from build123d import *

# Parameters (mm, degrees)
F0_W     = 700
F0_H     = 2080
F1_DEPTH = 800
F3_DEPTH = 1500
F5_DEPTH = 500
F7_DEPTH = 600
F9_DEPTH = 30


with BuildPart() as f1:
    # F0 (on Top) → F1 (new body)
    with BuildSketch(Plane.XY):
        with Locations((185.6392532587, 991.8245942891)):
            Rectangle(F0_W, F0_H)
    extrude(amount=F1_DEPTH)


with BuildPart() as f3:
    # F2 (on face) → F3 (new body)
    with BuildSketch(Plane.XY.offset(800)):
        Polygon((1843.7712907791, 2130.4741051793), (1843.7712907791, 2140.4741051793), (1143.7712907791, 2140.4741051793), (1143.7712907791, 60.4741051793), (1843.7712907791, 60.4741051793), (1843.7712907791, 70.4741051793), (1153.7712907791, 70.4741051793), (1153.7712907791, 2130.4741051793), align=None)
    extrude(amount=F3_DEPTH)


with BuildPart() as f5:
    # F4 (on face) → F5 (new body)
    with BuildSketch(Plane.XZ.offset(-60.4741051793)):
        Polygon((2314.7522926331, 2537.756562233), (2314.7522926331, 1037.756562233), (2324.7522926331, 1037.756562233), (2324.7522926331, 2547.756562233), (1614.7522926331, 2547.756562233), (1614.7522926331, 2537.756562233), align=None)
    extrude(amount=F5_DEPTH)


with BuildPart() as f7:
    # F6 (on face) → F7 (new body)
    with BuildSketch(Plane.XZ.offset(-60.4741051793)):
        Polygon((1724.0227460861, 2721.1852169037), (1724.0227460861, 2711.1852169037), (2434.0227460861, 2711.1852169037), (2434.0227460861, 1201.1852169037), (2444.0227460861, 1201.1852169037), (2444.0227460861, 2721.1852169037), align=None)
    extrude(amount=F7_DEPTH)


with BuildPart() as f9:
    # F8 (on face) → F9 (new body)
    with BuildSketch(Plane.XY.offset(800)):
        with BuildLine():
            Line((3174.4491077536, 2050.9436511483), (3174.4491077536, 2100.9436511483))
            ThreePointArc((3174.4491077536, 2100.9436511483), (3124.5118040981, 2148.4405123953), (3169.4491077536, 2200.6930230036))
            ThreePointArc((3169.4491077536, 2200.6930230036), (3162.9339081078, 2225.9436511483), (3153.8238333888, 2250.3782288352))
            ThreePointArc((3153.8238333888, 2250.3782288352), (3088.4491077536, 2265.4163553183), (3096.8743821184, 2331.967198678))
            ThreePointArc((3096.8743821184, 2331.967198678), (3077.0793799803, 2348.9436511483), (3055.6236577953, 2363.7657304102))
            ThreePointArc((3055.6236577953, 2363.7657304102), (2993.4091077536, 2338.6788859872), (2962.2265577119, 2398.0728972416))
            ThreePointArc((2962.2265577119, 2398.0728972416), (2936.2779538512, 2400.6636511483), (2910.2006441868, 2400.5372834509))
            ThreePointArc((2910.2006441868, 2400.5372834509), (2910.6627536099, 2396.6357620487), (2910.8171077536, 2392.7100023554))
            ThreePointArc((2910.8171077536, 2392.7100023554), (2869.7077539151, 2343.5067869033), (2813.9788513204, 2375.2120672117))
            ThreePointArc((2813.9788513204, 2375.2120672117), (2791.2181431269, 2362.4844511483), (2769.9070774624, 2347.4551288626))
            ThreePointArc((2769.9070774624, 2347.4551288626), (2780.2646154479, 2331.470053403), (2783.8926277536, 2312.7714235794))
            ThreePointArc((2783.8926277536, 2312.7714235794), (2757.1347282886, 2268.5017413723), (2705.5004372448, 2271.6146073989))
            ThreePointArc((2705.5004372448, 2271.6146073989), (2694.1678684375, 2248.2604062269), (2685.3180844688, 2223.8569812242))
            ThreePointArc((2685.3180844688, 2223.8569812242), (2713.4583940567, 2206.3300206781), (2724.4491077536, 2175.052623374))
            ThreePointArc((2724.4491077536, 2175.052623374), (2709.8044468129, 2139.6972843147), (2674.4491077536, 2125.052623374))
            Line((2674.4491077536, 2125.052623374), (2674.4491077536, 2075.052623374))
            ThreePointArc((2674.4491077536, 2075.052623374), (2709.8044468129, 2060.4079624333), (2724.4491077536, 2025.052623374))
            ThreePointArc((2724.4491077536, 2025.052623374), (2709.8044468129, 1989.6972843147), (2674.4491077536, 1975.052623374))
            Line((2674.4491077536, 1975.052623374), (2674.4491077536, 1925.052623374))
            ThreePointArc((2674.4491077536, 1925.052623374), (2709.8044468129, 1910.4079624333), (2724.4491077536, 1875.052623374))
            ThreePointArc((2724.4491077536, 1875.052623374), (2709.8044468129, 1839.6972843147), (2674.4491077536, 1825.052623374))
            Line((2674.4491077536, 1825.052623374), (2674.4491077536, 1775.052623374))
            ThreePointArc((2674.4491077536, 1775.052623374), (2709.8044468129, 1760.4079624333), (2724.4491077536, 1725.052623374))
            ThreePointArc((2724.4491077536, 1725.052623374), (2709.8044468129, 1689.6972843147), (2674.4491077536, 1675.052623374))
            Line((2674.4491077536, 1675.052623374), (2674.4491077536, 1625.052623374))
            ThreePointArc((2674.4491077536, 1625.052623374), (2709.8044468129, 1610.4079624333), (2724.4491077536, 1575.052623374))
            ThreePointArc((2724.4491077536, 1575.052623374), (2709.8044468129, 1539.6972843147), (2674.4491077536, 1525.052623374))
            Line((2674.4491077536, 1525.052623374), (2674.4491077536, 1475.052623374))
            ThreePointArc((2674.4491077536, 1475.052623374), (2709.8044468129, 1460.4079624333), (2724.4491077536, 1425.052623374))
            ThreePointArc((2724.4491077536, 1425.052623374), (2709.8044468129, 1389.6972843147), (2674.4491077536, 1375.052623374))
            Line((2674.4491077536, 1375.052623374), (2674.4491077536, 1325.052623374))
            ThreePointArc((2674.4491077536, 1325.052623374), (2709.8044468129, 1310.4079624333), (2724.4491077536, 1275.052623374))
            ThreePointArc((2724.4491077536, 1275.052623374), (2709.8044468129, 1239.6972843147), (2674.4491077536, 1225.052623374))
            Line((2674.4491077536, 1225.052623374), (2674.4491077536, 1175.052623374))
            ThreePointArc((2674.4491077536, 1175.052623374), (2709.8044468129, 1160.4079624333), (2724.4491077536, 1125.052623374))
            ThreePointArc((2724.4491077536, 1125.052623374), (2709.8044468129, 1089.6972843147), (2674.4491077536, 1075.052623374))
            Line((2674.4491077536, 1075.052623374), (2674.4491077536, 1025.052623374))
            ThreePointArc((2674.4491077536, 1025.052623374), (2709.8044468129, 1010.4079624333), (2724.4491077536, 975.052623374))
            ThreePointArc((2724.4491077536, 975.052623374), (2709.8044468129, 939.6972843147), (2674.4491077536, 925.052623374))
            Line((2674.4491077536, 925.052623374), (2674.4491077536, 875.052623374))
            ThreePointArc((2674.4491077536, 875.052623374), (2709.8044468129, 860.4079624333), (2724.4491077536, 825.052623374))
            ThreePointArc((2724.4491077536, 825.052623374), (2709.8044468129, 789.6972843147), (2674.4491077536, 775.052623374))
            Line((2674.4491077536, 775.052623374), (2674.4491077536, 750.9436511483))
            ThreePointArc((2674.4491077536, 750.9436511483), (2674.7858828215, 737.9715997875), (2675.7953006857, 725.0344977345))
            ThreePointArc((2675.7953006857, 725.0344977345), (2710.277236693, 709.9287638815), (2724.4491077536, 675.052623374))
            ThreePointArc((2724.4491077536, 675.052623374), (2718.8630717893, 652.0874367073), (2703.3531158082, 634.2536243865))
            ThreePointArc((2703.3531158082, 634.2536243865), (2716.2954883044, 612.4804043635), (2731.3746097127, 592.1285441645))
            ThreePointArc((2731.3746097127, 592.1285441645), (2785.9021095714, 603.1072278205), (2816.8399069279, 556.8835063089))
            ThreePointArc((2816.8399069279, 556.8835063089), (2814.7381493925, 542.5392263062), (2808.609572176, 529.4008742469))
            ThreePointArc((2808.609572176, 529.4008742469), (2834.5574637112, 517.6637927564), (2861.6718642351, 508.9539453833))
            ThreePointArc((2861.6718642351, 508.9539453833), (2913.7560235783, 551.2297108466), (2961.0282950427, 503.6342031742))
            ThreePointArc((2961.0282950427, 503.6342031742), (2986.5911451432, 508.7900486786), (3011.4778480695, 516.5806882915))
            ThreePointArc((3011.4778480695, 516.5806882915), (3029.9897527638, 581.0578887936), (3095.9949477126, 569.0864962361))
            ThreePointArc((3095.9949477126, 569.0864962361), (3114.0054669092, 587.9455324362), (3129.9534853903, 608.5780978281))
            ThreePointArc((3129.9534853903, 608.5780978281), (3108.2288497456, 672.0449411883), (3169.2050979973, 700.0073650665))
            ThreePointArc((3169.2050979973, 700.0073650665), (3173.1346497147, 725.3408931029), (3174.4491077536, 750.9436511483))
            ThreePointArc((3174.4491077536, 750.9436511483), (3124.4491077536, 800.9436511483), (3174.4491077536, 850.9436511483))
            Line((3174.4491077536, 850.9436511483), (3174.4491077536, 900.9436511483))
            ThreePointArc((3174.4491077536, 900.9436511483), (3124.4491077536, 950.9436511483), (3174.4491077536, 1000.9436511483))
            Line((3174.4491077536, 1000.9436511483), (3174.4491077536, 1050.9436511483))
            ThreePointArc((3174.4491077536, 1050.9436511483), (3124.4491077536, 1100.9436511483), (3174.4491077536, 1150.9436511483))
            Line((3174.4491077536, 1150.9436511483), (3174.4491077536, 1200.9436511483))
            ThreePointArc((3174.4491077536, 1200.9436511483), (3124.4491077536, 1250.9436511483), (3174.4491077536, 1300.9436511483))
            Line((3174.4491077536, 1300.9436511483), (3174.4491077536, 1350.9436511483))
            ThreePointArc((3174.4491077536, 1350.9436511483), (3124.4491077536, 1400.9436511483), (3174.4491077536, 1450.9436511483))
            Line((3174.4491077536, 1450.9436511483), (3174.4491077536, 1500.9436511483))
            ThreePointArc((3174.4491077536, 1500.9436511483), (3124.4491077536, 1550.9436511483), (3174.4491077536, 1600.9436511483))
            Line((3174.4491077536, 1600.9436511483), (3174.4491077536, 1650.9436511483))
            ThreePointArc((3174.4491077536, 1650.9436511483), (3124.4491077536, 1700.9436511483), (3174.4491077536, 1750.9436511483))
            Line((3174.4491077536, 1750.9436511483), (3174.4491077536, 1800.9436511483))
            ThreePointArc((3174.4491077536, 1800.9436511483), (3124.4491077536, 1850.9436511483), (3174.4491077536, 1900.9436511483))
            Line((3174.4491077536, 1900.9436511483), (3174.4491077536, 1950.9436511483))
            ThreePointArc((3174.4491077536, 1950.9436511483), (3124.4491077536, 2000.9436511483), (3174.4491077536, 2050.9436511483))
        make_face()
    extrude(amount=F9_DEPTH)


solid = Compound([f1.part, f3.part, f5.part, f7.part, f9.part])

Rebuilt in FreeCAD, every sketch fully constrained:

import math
import FreeCAD as App
import Part
import Sketcher
Q = App.Units.Quantity


def add_polygon(sketch, points):
    """Adds a closed chain of lines whose ends are joined by coincident constraints."""
    first, n = sketch.GeometryCount, len(points)
    for a, b in zip(points, points[1:] + points[:1]):
        sketch.addGeometry(Part.LineSegment(App.Vector(*a, 0), App.Vector(*b, 0)), False)
    for i in range(n):
        sketch.addConstraint(Sketcher.Constraint("Coincident", first + i, 2, first + (i + 1) % n, 1))

doc = App.newDocument("Part")
body = doc.addObject("PartDesign::Body", "Body")

# Sketch on XY plane
sketch1 = doc.addObject("Sketcher::SketchObject", "Sketch")
body.addObject(sketch1)
sketch1.AttachmentSupport = (doc.XY_Plane, [""])
sketch1.MapMode = "FlatFace"
add_polygon(sketch1, [(-164, 2032), (-164, -48), (536, -48), (536, 2032)])  # lines 0-3
sketch1.addConstraint(Sketcher.Constraint("Vertical", 0))
sketch1.addConstraint(Sketcher.Constraint("Horizontal", 1))
sketch1.addConstraint(Sketcher.Constraint("Vertical", 2))
sketch1.addConstraint(Sketcher.Constraint("Horizontal", 3))
sketch1.addConstraint(Sketcher.Constraint("DistanceX", 1, 1, 1, 2, Q("700 mm")))
sketch1.addConstraint(Sketcher.Constraint("DistanceY", 0, 2, 0, 1, Q("2080 mm")))
sketch1.addConstraint(Sketcher.Constraint("DistanceX", 0, 2, -1, 1, Q("164.360747 mm")))
sketch1.addConstraint(Sketcher.Constraint("DistanceY", 0, 2, -1, 1, Q("48.175406 mm")))
pad1 = doc.addObject("PartDesign::Pad", "Pad")
body.addObject(pad1)
pad1.Profile = sketch1
pad1.Length = 800
body2 = doc.addObject("PartDesign::Body", "Body001")

# Sketch on XY plane
sketch2 = doc.addObject("Sketcher::SketchObject", "Sketch001")
body2.addObject(sketch2)
sketch2.AttachmentSupport = (doc.getObject("XY_Plane001"), [""])
sketch2.MapMode = "FlatFace"
sketch2.AttachmentOffset = App.Placement(App.Vector(0, 0, 800), App.Rotation())
add_polygon(sketch2, [(1844, 2130), (1844, 2140), (1144, 2140), (1144, 60), (1844, 60), (1844, 70), (1154, 70), (1154, 2130)])  # lines 0-7
sketch2.addConstraint(Sketcher.Constraint("Vertical", 0))
sketch2.addConstraint(Sketcher.Constraint("Horizontal", 1))
sketch2.addConstraint(Sketcher.Constraint("Vertical", 2))
sketch2.addConstraint(Sketcher.Constraint("Horizontal", 3))
sketch2.addConstraint(Sketcher.Constraint("Vertical", 4))
sketch2.addConstraint(Sketcher.Constraint("Horizontal", 5))
sketch2.addConstraint(Sketcher.Constraint("Vertical", 6))
sketch2.addConstraint(Sketcher.Constraint("Horizontal", 7))
sketch2.addConstraint(Sketcher.Constraint("Vertical", 0, 2, 3, 2))
sketch2.addConstraint(Sketcher.Constraint("Equal", 0, 4))
sketch2.addConstraint(Sketcher.Constraint("DistanceX", 1, 2, 1, 1, Q("700 mm")))
sketch2.addConstraint(Sketcher.Constraint("DistanceX", 5, 2, 5, 1, Q("690 mm")))
sketch2.addConstraint(Sketcher.Constraint("DistanceY", 0, 1, 0, 2, Q("10 mm")))
sketch2.addConstraint(Sketcher.Constraint("DistanceY", 2, 2, 2, 1, Q("2080 mm")))
sketch2.addConstraint(Sketcher.Constraint("DistanceX", -1, 1, 0, 2, Q("1843.771291 mm")))
sketch2.addConstraint(Sketcher.Constraint("DistanceY", -1, 1, 0, 2, Q("2140.474105 mm")))
pad2 = doc.addObject("PartDesign::Pad", "Pad001")
body2.addObject(pad2)
pad2.Profile = sketch2
pad2.Length = 1500
body3 = doc.addObject("PartDesign::Body", "Body002")

# Sketch on XZ plane
sketch3 = doc.addObject("Sketcher::SketchObject", "Sketch002")
body3.addObject(sketch3)
sketch3.AttachmentSupport = (doc.getObject("XZ_Plane002"), [""])
sketch3.MapMode = "FlatFace"
sketch3.AttachmentOffset = App.Placement(App.Vector(0, 0, -60.474105), App.Rotation())
add_polygon(sketch3, [(2315, 2538), (2315, 1038), (2325, 1038), (2325, 2548), (1615, 2548), (1615, 2538)])  # lines 0-5
sketch3.addConstraint(Sketcher.Constraint("Vertical", 0))
sketch3.addConstraint(Sketcher.Constraint("Horizontal", 1))
sketch3.addConstraint(Sketcher.Constraint("Vertical", 2))
sketch3.addConstraint(Sketcher.Constraint("Horizontal", 3))
sketch3.addConstraint(Sketcher.Constraint("Vertical", 4))
sketch3.addConstraint(Sketcher.Constraint("Horizontal", 5))
sketch3.addConstraint(Sketcher.Constraint("Equal", 1, 4))
sketch3.addConstraint(Sketcher.Constraint("DistanceX", 1, 1, 1, 2, Q("10 mm")))
sketch3.addConstraint(Sketcher.Constraint("DistanceX", 3, 2, 3, 1, Q("710 mm")))
sketch3.addConstraint(Sketcher.Constraint("DistanceY", 0, 2, 0, 1, Q("1500 mm")))
sketch3.addConstraint(Sketcher.Constraint("DistanceX", -1, 1, 0, 2, Q("2314.752293 mm")))
sketch3.addConstraint(Sketcher.Constraint("DistanceY", -1, 1, 0, 2, Q("1037.756562 mm")))
pad3 = doc.addObject("PartDesign::Pad", "Pad002")
body3.addObject(pad3)
pad3.Profile = sketch3
pad3.Length = 500
body4 = doc.addObject("PartDesign::Body", "Body003")

# Sketch on XZ plane
sketch4 = doc.addObject("Sketcher::SketchObject", "Sketch003")
body4.addObject(sketch4)
sketch4.AttachmentSupport = (doc.getObject("XZ_Plane003"), [""])
sketch4.MapMode = "FlatFace"
sketch4.AttachmentOffset = App.Placement(App.Vector(0, 0, -60.474105), App.Rotation())
add_polygon(sketch4, [(1724, 2721), (1724, 2711), (2434, 2711), (2434, 1201), (2444, 1201), (2444, 2721)])  # lines 0-5
sketch4.addConstraint(Sketcher.Constraint("Vertical", 0))
sketch4.addConstraint(Sketcher.Constraint("Horizontal", 1))
sketch4.addConstraint(Sketcher.Constraint("Vertical", 2))
sketch4.addConstraint(Sketcher.Constraint("Horizontal", 3))
sketch4.addConstraint(Sketcher.Constraint("Vertical", 4))
sketch4.addConstraint(Sketcher.Constraint("Horizontal", 5))
sketch4.addConstraint(Sketcher.Constraint("Equal", 3, 0))
sketch4.addConstraint(Sketcher.Constraint("DistanceX", 1, 1, 1, 2, Q("710 mm")))
sketch4.addConstraint(Sketcher.Constraint("DistanceX", 3, 1, 3, 2, Q("10 mm")))
sketch4.addConstraint(Sketcher.Constraint("DistanceY", 2, 2, 2, 1, Q("1510 mm")))
sketch4.addConstraint(Sketcher.Constraint("DistanceX", -1, 1, 0, 2, Q("1724.022746 mm")))
sketch4.addConstraint(Sketcher.Constraint("DistanceY", -1, 1, 0, 2, Q("2711.185217 mm")))
pad4 = doc.addObject("PartDesign::Pad", "Pad003")
body4.addObject(pad4)
pad4.Profile = sketch4
pad4.Length = 600
body5 = doc.addObject("PartDesign::Body", "Body004")

# Sketch on XY plane
sketch5 = doc.addObject("Sketcher::SketchObject", "Sketch004")
body5.addObject(sketch5)
sketch5.AttachmentSupport = (doc.getObject("XY_Plane004"), [""])
sketch5.MapMode = "FlatFace"
sketch5.AttachmentOffset = App.Placement(App.Vector(0, 0, 800), App.Rotation())
sketch5.addGeometry(Part.LineSegment(App.Vector(3174, 2051, 0), App.Vector(3174, 2101, 0)), False)
sketch5.addGeometry(Part.ArcOfCircle(Part.Circle(App.Vector(3174, 2151, 0), App.Vector(0, 0, 1), 50), math.radians(96), math.radians(270)), False)
sketch5.addGeometry(Part.ArcOfCircle(Part.Circle(App.Vector(2924, 2151, 0), App.Vector(0, 0, 1), 250), math.radians(11.48), math.radians(23.44)), False)
sketch5.addGeometry(Part.ArcOfCircle(Part.Circle(App.Vector(3129, 2294, 0), App.Vector(0, 0, 1), 50), math.radians(131), math.radians(299)), False)
sketch5.addGeometry(Part.ArcOfCircle(Part.Circle(App.Vector(2924, 2151, 0), App.Vector(0, 0, 1), 250), math.radians(46.39), math.radians(58.35)), False)
sketch5.addGeometry(Part.ArcOfCircle(Part.Circle(App.Vector(3011, 2386, 0), App.Vector(0, 0, 1), 50), math.radians(166), math.radians(334)), False)
sketch5.addGeometry(Part.ArcOfCircle(Part.Circle(App.Vector(2924, 2151, 0), App.Vector(0, 0, 1), 250), math.radians(81.31), math.radians(93.27)), False)
sketch5.addGeometry(Part.ArcOfCircle(Part.Circle(App.Vector(2861, 2393, 0), App.Vector(0, 0, 1), 50), math.radians(0), math.radians(9.01)), False)
sketch5.addGeometry(Part.ArcOfCircle(Part.Circle(App.Vector(2861, 2393, 0), App.Vector(0, 0, 1), 50), math.radians(-160), math.radians(0)), False)
sketch5.addGeometry(Part.ArcOfCircle(Part.Circle(App.Vector(2924, 2151, 0), App.Vector(0, 0, 1), 250), math.radians(116.22), math.radians(128.18)), False)
sketch5.addGeometry(Part.ArcOfCircle(Part.Circle(App.Vector(2734, 2313, 0), App.Vector(0, 0, 1), 50), math.radians(0), math.radians(44)), False)
sketch5.addGeometry(Part.ArcOfCircle(Part.Circle(App.Vector(2734, 2313, 0), App.Vector(0, 0, 1), 50), math.radians(-125), math.radians(0)), False)
sketch5.addGeometry(Part.ArcOfCircle(Part.Circle(App.Vector(2924, 2151, 0), App.Vector(0, 0, 1), 250), math.radians(151.14), math.radians(163.04)), False)
sketch5.addGeometry(Part.ArcOfCircle(Part.Circle(App.Vector(2674, 2175, 0), App.Vector(0, 0, 1), 50), math.radians(0), math.radians(77)), False)
sketch5.addGeometry(Part.ArcOfCircle(Part.Circle(App.Vector(2674, 2175, 0), App.Vector(0, 0, 1), 50), math.radians(-90), math.radians(0)), False)
sketch5.addGeometry(Part.LineSegment(App.Vector(2674, 2125, 0), App.Vector(2674, 2075, 0)), False)
sketch5.addGeometry(Part.ArcOfCircle(Part.Circle(App.Vector(2674, 2025, 0), App.Vector(0, 0, 1), 50), math.radians(0), math.radians(90)), False)
sketch5.addGeometry(Part.ArcOfCircle(Part.Circle(App.Vector(2674, 2025, 0), App.Vector(0, 0, 1), 50), math.radians(-90), math.radians(0)), False)
sketch5.addGeometry(Part.LineSegment(App.Vector(2674, 1975, 0), App.Vector(2674, 1925, 0)), False)
sketch5.addGeometry(Part.ArcOfCircle(Part.Circle(App.Vector(2674, 1875, 0), App.Vector(0, 0, 1), 50), math.radians(0), math.radians(90)), False)
sketch5.addGeometry(Part.ArcOfCircle(Part.Circle(App.Vector(2674, 1875, 0), App.Vector(0, 0, 1), 50), math.radians(-90), math.radians(0)), False)
sketch5.addGeometry(Part.LineSegment(App.Vector(2674, 1825, 0), App.Vector(2674, 1775, 0)), False)
sketch5.addGeometry(Part.ArcOfCircle(Part.Circle(App.Vector(2674, 1725, 0), App.Vector(0, 0, 1), 50), math.radians(0), math.radians(90)), False)
sketch5.addGeometry(Part.ArcOfCircle(Part.Circle(App.Vector(2674, 1725, 0), App.Vector(0, 0, 1), 50), math.radians(-90), math.radians(0)), False)
sketch5.addGeometry(Part.LineSegment(App.Vector(2674, 1675, 0), App.Vector(2674, 1625, 0)), False)
sketch5.addGeometry(Part.ArcOfCircle(Part.Circle(App.Vector(2674, 1575, 0), App.Vector(0, 0, 1), 50), math.radians(0), math.radians(90)), False)
sketch5.addGeometry(Part.ArcOfCircle(Part.Circle(App.Vector(2674, 1575, 0), App.Vector(0, 0, 1), 50), math.radians(-90), math.radians(0)), False)
sketch5.addGeometry(Part.LineSegment(App.Vector(2674, 1525, 0), App.Vector(2674, 1475, 0)), False)
sketch5.addGeometry(Part.ArcOfCircle(Part.Circle(App.Vector(2674, 1425, 0), App.Vector(0, 0, 1), 50), math.radians(0), math.radians(90)), False)
sketch5.addGeometry(Part.ArcOfCircle(Part.Circle(App.Vector(2674, 1425, 0), App.Vector(0, 0, 1), 50), math.radians(-90), math.radians(0)), False)
sketch5.addGeometry(Part.LineSegment(App.Vector(2674, 1375, 0), App.Vector(2674, 1325, 0)), False)
sketch5.addGeometry(Part.ArcOfCircle(Part.Circle(App.Vector(2674, 1275, 0), App.Vector(0, 0, 1), 50), math.radians(0), math.radians(90)), False)
sketch5.addGeometry(Part.ArcOfCircle(Part.Circle(App.Vector(2674, 1275, 0), App.Vector(0, 0, 1), 50), math.radians(-90), math.radians(0)), False)
sketch5.addGeometry(Part.LineSegment(App.Vector(2674, 1225, 0), App.Vector(2674, 1175, 0)), False)
sketch5.addGeometry(Part.ArcOfCircle(Part.Circle(App.Vector(2674, 1125, 0), App.Vector(0, 0, 1), 50), math.radians(0), math.radians(90)), False)
sketch5.addGeometry(Part.ArcOfCircle(Part.Circle(App.Vector(2674, 1125, 0), App.Vector(0, 0, 1), 50), math.radians(-90), math.radians(0)), False)
sketch5.addGeometry(Part.LineSegment(App.Vector(2674, 1075, 0), App.Vector(2674, 1025, 0)), False)
sketch5.addGeometry(Part.ArcOfCircle(Part.Circle(App.Vector(2674, 975, 0), App.Vector(0, 0, 1), 50), math.radians(0), math.radians(90)), False)
sketch5.addGeometry(Part.ArcOfCircle(Part.Circle(App.Vector(2674, 975, 0), App.Vector(0, 0, 1), 50), math.radians(-90), math.radians(0)), False)
sketch5.addGeometry(Part.LineSegment(App.Vector(2674, 925, 0), App.Vector(2674, 875, 0)), False)
sketch5.addGeometry(Part.ArcOfCircle(Part.Circle(App.Vector(2674, 825, 0), App.Vector(0, 0, 1), 50), math.radians(0), math.radians(90)), False)
sketch5.addGeometry(Part.ArcOfCircle(Part.Circle(App.Vector(2674, 825, 0), App.Vector(0, 0, 1), 50), math.radians(-90), math.radians(0)), False)
sketch5.addGeometry(Part.LineSegment(App.Vector(2674, 775, 0), App.Vector(2674, 751, 0)), False)
sketch5.addGeometry(Part.ArcOfCircle(Part.Circle(App.Vector(2924, 751, 0), App.Vector(0, 0, 1), 250), math.radians(180), math.radians(185.95)), False)
sketch5.addGeometry(Part.ArcOfCircle(Part.Circle(App.Vector(2674, 675, 0), App.Vector(0, 0, 1), 50), math.radians(0), math.radians(88)), False)
sketch5.addGeometry(Part.ArcOfCircle(Part.Circle(App.Vector(2674, 675, 0), App.Vector(0, 0, 1), 50), math.radians(-55), math.radians(0)), False)
sketch5.addGeometry(Part.ArcOfCircle(Part.Circle(App.Vector(2924, 751, 0), App.Vector(0, 0, 1), 250), math.radians(-152.18), math.radians(-140.56)), False)
sketch5.addGeometry(Part.ArcOfCircle(Part.Circle(App.Vector(2767, 557, 0), App.Vector(0, 0, 1), 50), math.radians(0), math.radians(135)), False)
sketch5.addGeometry(Part.ArcOfCircle(Part.Circle(App.Vector(2767, 557, 0), App.Vector(0, 0, 1), 50), math.radians(-33), math.radians(0)), False)
sketch5.addGeometry(Part.ArcOfCircle(Part.Circle(App.Vector(2924, 751, 0), App.Vector(0, 0, 1), 250), math.radians(-117.6), math.radians(-104.54)), False)
sketch5.addGeometry(Part.ArcOfCircle(Part.Circle(App.Vector(2911, 501, 0), App.Vector(0, 0, 1), 50), math.radians(3), math.radians(171)), False)
sketch5.addGeometry(Part.ArcOfCircle(Part.Circle(App.Vector(2924, 751, 0), App.Vector(0, 0, 1), 250), math.radians(-81.59), math.radians(-69.63)), False)
sketch5.addGeometry(Part.ArcOfCircle(Part.Circle(App.Vector(3056, 539, 0), App.Vector(0, 0, 1), 50), math.radians(38), math.radians(206)), False)
sketch5.addGeometry(Part.ArcOfCircle(Part.Circle(App.Vector(2924, 751, 0), App.Vector(0, 0, 1), 250), math.radians(-46.67), math.radians(-34.71)), False)
sketch5.addGeometry(Part.ArcOfCircle(Part.Circle(App.Vector(3154, 652, 0), App.Vector(0, 0, 1), 50), math.radians(73), math.radians(241)), False)
sketch5.addGeometry(Part.ArcOfCircle(Part.Circle(App.Vector(2924, 751, 0), App.Vector(0, 0, 1), 250), math.radians(-11.76), math.radians(0)), False)
sketch5.addGeometry(Part.ArcOfCircle(Part.Circle(App.Vector(3174, 801, 0), App.Vector(0, 0, 1), 50), math.radians(90), math.radians(270)), False)
sketch5.addGeometry(Part.LineSegment(App.Vector(3174, 851, 0), App.Vector(3174, 901, 0)), False)
sketch5.addGeometry(Part.ArcOfCircle(Part.Circle(App.Vector(3174, 951, 0), App.Vector(0, 0, 1), 50), math.radians(90), math.radians(270)), False)
sketch5.addGeometry(Part.LineSegment(App.Vector(3174, 1001, 0), App.Vector(3174, 1051, 0)), False)
sketch5.addGeometry(Part.ArcOfCircle(Part.Circle(App.Vector(3174, 1101, 0), App.Vector(0, 0, 1), 50), math.radians(90), math.radians(270)), False)
sketch5.addGeometry(Part.LineSegment(App.Vector(3174, 1151, 0), App.Vector(3174, 1201, 0)), False)
sketch5.addGeometry(Part.ArcOfCircle(Part.Circle(App.Vector(3174, 1251, 0), App.Vector(0, 0, 1), 50), math.radians(90), math.radians(270)), False)
sketch5.addGeometry(Part.LineSegment(App.Vector(3174, 1301, 0), App.Vector(3174, 1351, 0)), False)
sketch5.addGeometry(Part.ArcOfCircle(Part.Circle(App.Vector(3174, 1401, 0), App.Vector(0, 0, 1), 50), math.radians(90), math.radians(270)), False)
sketch5.addGeometry(Part.LineSegment(App.Vector(3174, 1451, 0), App.Vector(3174, 1501, 0)), False)
sketch5.addGeometry(Part.ArcOfCircle(Part.Circle(App.Vector(3174, 1551, 0), App.Vector(0, 0, 1), 50), math.radians(90), math.radians(270)), False)
sketch5.addGeometry(Part.LineSegment(App.Vector(3174, 1601, 0), App.Vector(3174, 1651, 0)), False)
sketch5.addGeometry(Part.ArcOfCircle(Part.Circle(App.Vector(3174, 1701, 0), App.Vector(0, 0, 1), 50), math.radians(90), math.radians(270)), False)
sketch5.addGeometry(Part.LineSegment(App.Vector(3174, 1751, 0), App.Vector(3174, 1801, 0)), False)
sketch5.addGeometry(Part.ArcOfCircle(Part.Circle(App.Vector(3174, 1851, 0), App.Vector(0, 0, 1), 50), math.radians(90), math.radians(270)), False)
sketch5.addGeometry(Part.LineSegment(App.Vector(3174, 1901, 0), App.Vector(3174, 1951, 0)), False)
sketch5.addGeometry(Part.ArcOfCircle(Part.Circle(App.Vector(3174, 2001, 0), App.Vector(0, 0, 1), 50), math.radians(90), math.radians(270)), False)
sketch5.addConstraint(Sketcher.Constraint("Coincident", 0, 2, 1, 2))
sketch5.addConstraint(Sketcher.Constraint("Coincident", 1, 1, 2, 1))
sketch5.addConstraint(Sketcher.Constraint("Coincident", 2, 2, 3, 2))
sketch5.addConstraint(Sketcher.Constraint("Coincident", 3, 1, 4, 1))
sketch5.addConstraint(Sketcher.Constraint("Coincident", 4, 2, 5, 2))
sketch5.addConstraint(Sketcher.Constraint("Coincident", 5, 1, 6, 1))
sketch5.addConstraint(Sketcher.Constraint("Coincident", 6, 2, 7, 2))
sketch5.addConstraint(Sketcher.Constraint("Tangent", 7, 1, 8, 2))
sketch5.addConstraint(Sketcher.Constraint("Coincident", 8, 1, 9, 1))
sketch5.addConstraint(Sketcher.Constraint("Coincident", 9, 2, 10, 2))
sketch5.addConstraint(Sketcher.Constraint("Tangent", 10, 1, 11, 2))
sketch5.addConstraint(Sketcher.Constraint("Coincident", 11, 1, 12, 1))
sketch5.addConstraint(Sketcher.Constraint("Coincident", 12, 2, 13, 2))
sketch5.addConstraint(Sketcher.Constraint("Tangent", 13, 1, 14, 2))
sketch5.addConstraint(Sketcher.Constraint("Coincident", 14, 1, 15, 1))
sketch5.addConstraint(Sketcher.Constraint("Coincident", 15, 2, 16, 2))
sketch5.addConstraint(Sketcher.Constraint("Tangent", 16, 1, 17, 2))
sketch5.addConstraint(Sketcher.Constraint("Coincident", 17, 1, 18, 1))
sketch5.addConstraint(Sketcher.Constraint("Coincident", 18, 2, 19, 2))
sketch5.addConstraint(Sketcher.Constraint("Tangent", 19, 1, 20, 2))
sketch5.addConstraint(Sketcher.Constraint("Coincident", 20, 1, 21, 1))
sketch5.addConstraint(Sketcher.Constraint("Coincident", 21, 2, 22, 2))
sketch5.addConstraint(Sketcher.Constraint("Tangent", 22, 1, 23, 2))
sketch5.addConstraint(Sketcher.Constraint("Coincident", 23, 1, 24, 1))
sketch5.addConstraint(Sketcher.Constraint("Coincident", 24, 2, 25, 2))
sketch5.addConstraint(Sketcher.Constraint("Tangent", 25, 1, 26, 2))
sketch5.addConstraint(Sketcher.Constraint("Coincident", 26, 1, 27, 1))
sketch5.addConstraint(Sketcher.Constraint("Coincident", 27, 2, 28, 2))
sketch5.addConstraint(Sketcher.Constraint("Tangent", 28, 1, 29, 2))
sketch5.addConstraint(Sketcher.Constraint("Coincident", 29, 1, 30, 1))
sketch5.addConstraint(Sketcher.Constraint("Coincident", 30, 2, 31, 2))
sketch5.addConstraint(Sketcher.Constraint("Tangent", 31, 1, 32, 2))
sketch5.addConstraint(Sketcher.Constraint("Coincident", 32, 1, 33, 1))
sketch5.addConstraint(Sketcher.Constraint("Coincident", 33, 2, 34, 2))
sketch5.addConstraint(Sketcher.Constraint("Tangent", 34, 1, 35, 2))
sketch5.addConstraint(Sketcher.Constraint("Coincident", 35, 1, 36, 1))
sketch5.addConstraint(Sketcher.Constraint("Coincident", 36, 2, 37, 2))
sketch5.addConstraint(Sketcher.Constraint("Tangent", 37, 1, 38, 2))
sketch5.addConstraint(Sketcher.Constraint("Coincident", 38, 1, 39, 1))
sketch5.addConstraint(Sketcher.Constraint("Coincident", 39, 2, 40, 2))
sketch5.addConstraint(Sketcher.Constraint("Tangent", 40, 1, 41, 2))
sketch5.addConstraint(Sketcher.Constraint("Coincident", 41, 1, 42, 1))
sketch5.addConstraint(Sketcher.Constraint("Tangent", 42, 2, 43, 1))
sketch5.addConstraint(Sketcher.Constraint("Coincident", 43, 2, 44, 2))
sketch5.addConstraint(Sketcher.Constraint("Tangent", 44, 1, 45, 2))
sketch5.addConstraint(Sketcher.Constraint("Coincident", 45, 1, 46, 1))
sketch5.addConstraint(Sketcher.Constraint("Coincident", 46, 2, 47, 2))
sketch5.addConstraint(Sketcher.Constraint("Tangent", 47, 1, 48, 2))
sketch5.addConstraint(Sketcher.Constraint("Coincident", 48, 1, 49, 1))
sketch5.addConstraint(Sketcher.Constraint("Coincident", 49, 2, 50, 2))
sketch5.addConstraint(Sketcher.Constraint("Coincident", 50, 1, 51, 1))
sketch5.addConstraint(Sketcher.Constraint("Coincident", 51, 2, 52, 2))
sketch5.addConstraint(Sketcher.Constraint("Coincident", 52, 1, 53, 1))
sketch5.addConstraint(Sketcher.Constraint("Coincident", 53, 2, 54, 2))
sketch5.addConstraint(Sketcher.Constraint("Coincident", 54, 1, 55, 1))
sketch5.addConstraint(Sketcher.Constraint("Coincident", 55, 2, 56, 2))
sketch5.addConstraint(Sketcher.Constraint("Coincident", 56, 1, 57, 1))
sketch5.addConstraint(Sketcher.Constraint("Coincident", 57, 2, 58, 2))
sketch5.addConstraint(Sketcher.Constraint("Coincident", 58, 1, 59, 1))
sketch5.addConstraint(Sketcher.Constraint("Coincident", 59, 2, 60, 2))
sketch5.addConstraint(Sketcher.Constraint("Coincident", 60, 1, 61, 1))
sketch5.addConstraint(Sketcher.Constraint("Coincident", 61, 2, 62, 2))
sketch5.addConstraint(Sketcher.Constraint("Coincident", 62, 1, 63, 1))
sketch5.addConstraint(Sketcher.Constraint("Coincident", 63, 2, 64, 2))
sketch5.addConstraint(Sketcher.Constraint("Coincident", 64, 1, 65, 1))
sketch5.addConstraint(Sketcher.Constraint("Coincident", 65, 2, 66, 2))
sketch5.addConstraint(Sketcher.Constraint("Coincident", 66, 1, 67, 1))
sketch5.addConstraint(Sketcher.Constraint("Coincident", 67, 2, 68, 2))
sketch5.addConstraint(Sketcher.Constraint("Coincident", 68, 1, 69, 1))
sketch5.addConstraint(Sketcher.Constraint("Coincident", 69, 2, 70, 2))
sketch5.addConstraint(Sketcher.Constraint("Coincident", 70, 1, 71, 1))
sketch5.addConstraint(Sketcher.Constraint("Coincident", 71, 2, 72, 2))
sketch5.addConstraint(Sketcher.Constraint("Coincident", 72, 1, 0, 1))
sketch5.addConstraint(Sketcher.Constraint("Vertical", 0))
sketch5.addConstraint(Sketcher.Constraint("Vertical", 15))
sketch5.addConstraint(Sketcher.Constraint("Vertical", 18))
sketch5.addConstraint(Sketcher.Constraint("Vertical", 21))
sketch5.addConstraint(Sketcher.Constraint("Vertical", 24))
sketch5.addConstraint(Sketcher.Constraint("Vertical", 27))
sketch5.addConstraint(Sketcher.Constraint("Vertical", 30))
sketch5.addConstraint(Sketcher.Constraint("Vertical", 33))
sketch5.addConstraint(Sketcher.Constraint("Vertical", 36))
sketch5.addConstraint(Sketcher.Constraint("Vertical", 39))
sketch5.addConstraint(Sketcher.Constraint("Vertical", 42))
sketch5.addConstraint(Sketcher.Constraint("Vertical", 57))
sketch5.addConstraint(Sketcher.Constraint("Vertical", 59))
sketch5.addConstraint(Sketcher.Constraint("Vertical", 61))
sketch5.addConstraint(Sketcher.Constraint("Vertical", 63))
sketch5.addConstraint(Sketcher.Constraint("Vertical", 65))
sketch5.addConstraint(Sketcher.Constraint("Vertical", 67))
sketch5.addConstraint(Sketcher.Constraint("Vertical", 69))
sketch5.addConstraint(Sketcher.Constraint("Vertical", 71))
sketch5.addConstraint(Sketcher.Constraint("Coincident", 4, 3, 2, 3))
sketch5.addConstraint(Sketcher.Constraint("Coincident", 6, 3, 2, 3))
sketch5.addConstraint(Sketcher.Constraint("Coincident", 9, 3, 2, 3))
sketch5.addConstraint(Sketcher.Constraint("Coincident", 12, 3, 2, 3))
sketch5.addConstraint(Sketcher.Constraint("Coincident", 46, 3, 43, 3))
sketch5.addConstraint(Sketcher.Constraint("Coincident", 49, 3, 43, 3))
sketch5.addConstraint(Sketcher.Constraint("Coincident", 51, 3, 43, 3))
sketch5.addConstraint(Sketcher.Constraint("Coincident", 53, 3, 43, 3))
sketch5.addConstraint(Sketcher.Constraint("Coincident", 55, 3, 43, 3))
sketch5.addConstraint(Sketcher.Constraint("Equal", 1, 3))
sketch5.addConstraint(Sketcher.Constraint("Equal", 2, 4))
sketch5.addConstraint(Sketcher.Constraint("Equal", 3, 5))
sketch5.addConstraint(Sketcher.Constraint("Equal", 4, 6))
sketch5.addConstraint(Sketcher.Constraint("Equal", 5, 7))
sketch5.addConstraint(Sketcher.Constraint("Equal", 7, 8))
sketch5.addConstraint(Sketcher.Constraint("Equal", 6, 9))
sketch5.addConstraint(Sketcher.Constraint("Equal", 8, 10))
sketch5.addConstraint(Sketcher.Constraint("Equal", 10, 11))
sketch5.addConstraint(Sketcher.Constraint("Equal", 9, 12))
sketch5.addConstraint(Sketcher.Constraint("Equal", 11, 13))
sketch5.addConstraint(Sketcher.Constraint("Equal", 13, 14))
sketch5.addConstraint(Sketcher.Constraint("Equal", 14, 16))
sketch5.addConstraint(Sketcher.Constraint("Equal", 16, 17))
sketch5.addConstraint(Sketcher.Constraint("Equal", 17, 19))
sketch5.addConstraint(Sketcher.Constraint("Equal", 19, 20))
sketch5.addConstraint(Sketcher.Constraint("Equal", 20, 22))
sketch5.addConstraint(Sketcher.Constraint("Equal", 22, 23))
sketch5.addConstraint(Sketcher.Constraint("Equal", 23, 25))
sketch5.addConstraint(Sketcher.Constraint("Equal", 25, 26))
sketch5.addConstraint(Sketcher.Constraint("Equal", 26, 28))
sketch5.addConstraint(Sketcher.Constraint("Equal", 28, 29))
sketch5.addConstraint(Sketcher.Constraint("Equal", 29, 31))
sketch5.addConstraint(Sketcher.Constraint("Equal", 31, 32))
sketch5.addConstraint(Sketcher.Constraint("Equal", 32, 34))
sketch5.addConstraint(Sketcher.Constraint("Equal", 34, 35))
sketch5.addConstraint(Sketcher.Constraint("Equal", 35, 37))
sketch5.addConstraint(Sketcher.Constraint("Equal", 37, 38))
sketch5.addConstraint(Sketcher.Constraint("Equal", 38, 40))
sketch5.addConstraint(Sketcher.Constraint("Equal", 40, 41))
sketch5.addConstraint(Sketcher.Constraint("Equal", 12, 43))
sketch5.addConstraint(Sketcher.Constraint("Equal", 41, 44))
sketch5.addConstraint(Sketcher.Constraint("Equal", 44, 45))
sketch5.addConstraint(Sketcher.Constraint("Equal", 43, 46))
sketch5.addConstraint(Sketcher.Constraint("Equal", 45, 47))
sketch5.addConstraint(Sketcher.Constraint("Equal", 47, 48))
sketch5.addConstraint(Sketcher.Constraint("Equal", 46, 49))
sketch5.addConstraint(Sketcher.Constraint("Equal", 48, 50))
sketch5.addConstraint(Sketcher.Constraint("Equal", 49, 51))
sketch5.addConstraint(Sketcher.Constraint("Equal", 50, 52))
sketch5.addConstraint(Sketcher.Constraint("Equal", 51, 53))
sketch5.addConstraint(Sketcher.Constraint("Equal", 52, 54))
sketch5.addConstraint(Sketcher.Constraint("Equal", 53, 55))
sketch5.addConstraint(Sketcher.Constraint("Equal", 54, 56))
sketch5.addConstraint(Sketcher.Constraint("Equal", 56, 58))
sketch5.addConstraint(Sketcher.Constraint("Equal", 58, 60))
sketch5.addConstraint(Sketcher.Constraint("Equal", 60, 62))
sketch5.addConstraint(Sketcher.Constraint("Equal", 62, 64))
sketch5.addConstraint(Sketcher.Constraint("Equal", 64, 66))
sketch5.addConstraint(Sketcher.Constraint("Equal", 66, 68))
sketch5.addConstraint(Sketcher.Constraint("Equal", 68, 70))
sketch5.addConstraint(Sketcher.Constraint("Equal", 70, 72))
sketch5.addConstraint(Sketcher.Constraint("Horizontal", 1, 3, 2, 3))
sketch5.addConstraint(Sketcher.Constraint("Horizontal", 8, 3, 7, 1))
sketch5.addConstraint(Sketcher.Constraint("Horizontal", 11, 3, 10, 1))
sketch5.addConstraint(Sketcher.Constraint("Horizontal", 14, 3, 13, 1))
sketch5.addConstraint(Sketcher.Constraint("Horizontal", 17, 3, 16, 1))
sketch5.addConstraint(Sketcher.Constraint("Horizontal", 20, 3, 19, 1))
sketch5.addConstraint(Sketcher.Constraint("Horizontal", 23, 3, 22, 1))
sketch5.addConstraint(Sketcher.Constraint("Horizontal", 26, 3, 25, 1))
sketch5.addConstraint(Sketcher.Constraint("Horizontal", 29, 3, 28, 1))
sketch5.addConstraint(Sketcher.Constraint("Horizontal", 32, 3, 31, 1))
sketch5.addConstraint(Sketcher.Constraint("Horizontal", 35, 3, 34, 1))
sketch5.addConstraint(Sketcher.Constraint("Horizontal", 38, 3, 37, 1))
sketch5.addConstraint(Sketcher.Constraint("Horizontal", 41, 3, 40, 1))
sketch5.addConstraint(Sketcher.Constraint("Horizontal", 45, 3, 44, 1))
sketch5.addConstraint(Sketcher.Constraint("Horizontal", 48, 3, 47, 1))
sketch5.addConstraint(Sketcher.Constraint("Horizontal", 42, 2, 55, 2))
sketch5.addConstraint(Sketcher.Constraint("Vertical", 14, 3, 16, 3))
sketch5.addConstraint(Sketcher.Constraint("Vertical", 17, 3, 19, 3))
sketch5.addConstraint(Sketcher.Constraint("Vertical", 20, 3, 22, 3))
sketch5.addConstraint(Sketcher.Constraint("Vertical", 23, 3, 25, 3))
sketch5.addConstraint(Sketcher.Constraint("Vertical", 26, 3, 28, 3))
sketch5.addConstraint(Sketcher.Constraint("Vertical", 29, 3, 31, 3))
sketch5.addConstraint(Sketcher.Constraint("Vertical", 32, 3, 34, 3))
sketch5.addConstraint(Sketcher.Constraint("Vertical", 35, 3, 37, 3))
sketch5.addConstraint(Sketcher.Constraint("Vertical", 38, 3, 40, 3))
sketch5.addConstraint(Sketcher.Constraint("Vertical", 12, 3, 43, 3))
sketch5.addConstraint(Sketcher.Constraint("Vertical", 41, 3, 44, 3))
sketch5.addConstraint(Sketcher.Constraint("Vertical", 1, 3, 56, 3))
sketch5.addConstraint(Sketcher.Constraint("Vertical", 56, 3, 58, 3))
sketch5.addConstraint(Sketcher.Constraint("Vertical", 58, 3, 60, 3))
sketch5.addConstraint(Sketcher.Constraint("Vertical", 60, 3, 62, 3))
sketch5.addConstraint(Sketcher.Constraint("Vertical", 62, 3, 64, 3))
sketch5.addConstraint(Sketcher.Constraint("Vertical", 64, 3, 66, 3))
sketch5.addConstraint(Sketcher.Constraint("Vertical", 66, 3, 68, 3))
sketch5.addConstraint(Sketcher.Constraint("Vertical", 68, 3, 70, 3))
sketch5.addConstraint(Sketcher.Constraint("Vertical", 70, 3, 72, 3))
sketch5.addConstraint(Sketcher.Constraint("Vertical", 72, 3, 0, 2))
sketch5.addConstraint(Sketcher.Constraint("Vertical", 45, 3, 14, 1))
sketch5.addConstraint(Sketcher.Constraint("Vertical", 15, 2, 17, 1))
sketch5.addConstraint(Sketcher.Constraint("Vertical", 18, 2, 20, 1))
sketch5.addConstraint(Sketcher.Constraint("Vertical", 21, 2, 23, 1))
sketch5.addConstraint(Sketcher.Constraint("Vertical", 24, 2, 26, 1))
sketch5.addConstraint(Sketcher.Constraint("Vertical", 27, 2, 29, 1))
sketch5.addConstraint(Sketcher.Constraint("Vertical", 30, 2, 32, 1))
sketch5.addConstraint(Sketcher.Constraint("Vertical", 33, 2, 35, 1))
sketch5.addConstraint(Sketcher.Constraint("Vertical", 36, 2, 38, 1))
sketch5.addConstraint(Sketcher.Constraint("Vertical", 39, 2, 41, 1))
sketch5.addConstraint(Sketcher.Constraint("Vertical", 0, 2, 55, 2))
sketch5.addConstraint(Sketcher.Constraint("Vertical", 55, 2, 56, 1))
sketch5.addConstraint(Sketcher.Constraint("Vertical", 57, 2, 58, 1))
sketch5.addConstraint(Sketcher.Constraint("Vertical", 59, 2, 60, 1))
sketch5.addConstraint(Sketcher.Constraint("Vertical", 61, 2, 62, 1))
sketch5.addConstraint(Sketcher.Constraint("Vertical", 63, 2, 64, 1))
sketch5.addConstraint(Sketcher.Constraint("Vertical", 65, 2, 66, 1))
sketch5.addConstraint(Sketcher.Constraint("Vertical", 67, 2, 68, 1))
sketch5.addConstraint(Sketcher.Constraint("Vertical", 69, 2, 70, 1))
sketch5.addConstraint(Sketcher.Constraint("Equal", 0, 15))
sketch5.addConstraint(Sketcher.Constraint("Equal", 15, 18))
sketch5.addConstraint(Sketcher.Constraint("Equal", 18, 21))
sketch5.addConstraint(Sketcher.Constraint("Equal", 21, 24))
sketch5.addConstraint(Sketcher.Constraint("Equal", 24, 27))
sketch5.addConstraint(Sketcher.Constraint("Equal", 27, 30))
sketch5.addConstraint(Sketcher.Constraint("Equal", 30, 33))
sketch5.addConstraint(Sketcher.Constraint("Equal", 33, 36))
sketch5.addConstraint(Sketcher.Constraint("Equal", 36, 39))
sketch5.addConstraint(Sketcher.Constraint("Equal", 39, 57))
sketch5.addConstraint(Sketcher.Constraint("Equal", 57, 59))
sketch5.addConstraint(Sketcher.Constraint("Equal", 59, 61))
sketch5.addConstraint(Sketcher.Constraint("Equal", 61, 63))
sketch5.addConstraint(Sketcher.Constraint("Equal", 63, 65))
sketch5.addConstraint(Sketcher.Constraint("Equal", 65, 67))
sketch5.addConstraint(Sketcher.Constraint("Equal", 67, 69))
sketch5.addConstraint(Sketcher.Constraint("Equal", 69, 71))
sketch5.addConstraint(Sketcher.Constraint("Radius", 1, Q("50 mm")))
sketch5.addConstraint(Sketcher.Constraint("Radius", 2, Q("250 mm")))
sketch5.addConstraint(Sketcher.Constraint("DistanceY", 0, 1, 0, 2, Q("50 mm")))
sketch5.addConstraint(Sketcher.Constraint("DistanceY", -1, 1, 3, 1, Q("2331.967199 mm")))
sketch5.addConstraint(Sketcher.Constraint("DistanceX", -1, 1, 43, 2, Q("2675.795301 mm")))
sketch5.addConstraint(Sketcher.Constraint("DistanceY", 42, 2, 42, 1, Q("24.108972 mm")))
sketch5.addConstraint(Sketcher.Constraint("DistanceY", -1, 1, 1, 3, Q("2150.943651 mm")))
sketch5.addConstraint(Sketcher.Constraint("DistanceY", -1, 1, 3, 3, Q("2294.034531 mm")))
sketch5.addConstraint(Sketcher.Constraint("DistanceY", -1, 1, 52, 3, Q("538.586448 mm")))
sketch5.addConstraint(Sketcher.Constraint("DistanceY", -1, 1, 4, 2, Q("2363.76573 mm")))
sketch5.addConstraint(Sketcher.Constraint("DistanceX", -1, 1, 8, 1, Q("2813.978851 mm")))
sketch5.addConstraint(Sketcher.Constraint("DistanceY", -1, 1, 9, 2, Q("2347.455129 mm")))
sketch5.addConstraint(Sketcher.Constraint("DistanceX", -1, 1, 46, 2, Q("2731.37461 mm")))
sketch5.addConstraint(Sketcher.Constraint("DistanceX", -1, 1, 51, 2, Q("3011.477848 mm")))
sketch5.addConstraint(Sketcher.Constraint("DistanceX", -1, 1, 1, 3, Q("3174.449108 mm")))
sketch5.addConstraint(Sketcher.Constraint("DistanceX", -1, 1, 5, 3, Q("3010.649108 mm")))
sketch5.addConstraint(Sketcher.Constraint("DistanceX", -1, 1, 7, 3, Q("2860.817108 mm")))
sketch5.addConstraint(Sketcher.Constraint("DistanceX", -1, 1, 10, 3, Q("2733.892628 mm")))
sketch5.addConstraint(Sketcher.Constraint("DistanceX", -1, 1, 47, 3, Q("2766.839907 mm")))
sketch5.addConstraint(Sketcher.Constraint("DistanceX", -1, 1, 50, 3, Q("2911.082753 mm")))
sketch5.addConstraint(Sketcher.Constraint("DistanceY", -1, 1, 50, 3, Q("501.301226 mm")))
sketch5.addConstraint(Sketcher.Constraint("DistanceX", -1, 1, 54, 3, Q("3154.173785 mm")))
sketch5.addConstraint(Sketcher.Constraint("DistanceY", -1, 1, 54, 3, Q("652.320264 mm")))
pad5 = doc.addObject("PartDesign::Pad", "Pad004")
body5.addObject(pad5)
pad5.Profile = sketch5
pad5.Length = 30

doc.recompute()
